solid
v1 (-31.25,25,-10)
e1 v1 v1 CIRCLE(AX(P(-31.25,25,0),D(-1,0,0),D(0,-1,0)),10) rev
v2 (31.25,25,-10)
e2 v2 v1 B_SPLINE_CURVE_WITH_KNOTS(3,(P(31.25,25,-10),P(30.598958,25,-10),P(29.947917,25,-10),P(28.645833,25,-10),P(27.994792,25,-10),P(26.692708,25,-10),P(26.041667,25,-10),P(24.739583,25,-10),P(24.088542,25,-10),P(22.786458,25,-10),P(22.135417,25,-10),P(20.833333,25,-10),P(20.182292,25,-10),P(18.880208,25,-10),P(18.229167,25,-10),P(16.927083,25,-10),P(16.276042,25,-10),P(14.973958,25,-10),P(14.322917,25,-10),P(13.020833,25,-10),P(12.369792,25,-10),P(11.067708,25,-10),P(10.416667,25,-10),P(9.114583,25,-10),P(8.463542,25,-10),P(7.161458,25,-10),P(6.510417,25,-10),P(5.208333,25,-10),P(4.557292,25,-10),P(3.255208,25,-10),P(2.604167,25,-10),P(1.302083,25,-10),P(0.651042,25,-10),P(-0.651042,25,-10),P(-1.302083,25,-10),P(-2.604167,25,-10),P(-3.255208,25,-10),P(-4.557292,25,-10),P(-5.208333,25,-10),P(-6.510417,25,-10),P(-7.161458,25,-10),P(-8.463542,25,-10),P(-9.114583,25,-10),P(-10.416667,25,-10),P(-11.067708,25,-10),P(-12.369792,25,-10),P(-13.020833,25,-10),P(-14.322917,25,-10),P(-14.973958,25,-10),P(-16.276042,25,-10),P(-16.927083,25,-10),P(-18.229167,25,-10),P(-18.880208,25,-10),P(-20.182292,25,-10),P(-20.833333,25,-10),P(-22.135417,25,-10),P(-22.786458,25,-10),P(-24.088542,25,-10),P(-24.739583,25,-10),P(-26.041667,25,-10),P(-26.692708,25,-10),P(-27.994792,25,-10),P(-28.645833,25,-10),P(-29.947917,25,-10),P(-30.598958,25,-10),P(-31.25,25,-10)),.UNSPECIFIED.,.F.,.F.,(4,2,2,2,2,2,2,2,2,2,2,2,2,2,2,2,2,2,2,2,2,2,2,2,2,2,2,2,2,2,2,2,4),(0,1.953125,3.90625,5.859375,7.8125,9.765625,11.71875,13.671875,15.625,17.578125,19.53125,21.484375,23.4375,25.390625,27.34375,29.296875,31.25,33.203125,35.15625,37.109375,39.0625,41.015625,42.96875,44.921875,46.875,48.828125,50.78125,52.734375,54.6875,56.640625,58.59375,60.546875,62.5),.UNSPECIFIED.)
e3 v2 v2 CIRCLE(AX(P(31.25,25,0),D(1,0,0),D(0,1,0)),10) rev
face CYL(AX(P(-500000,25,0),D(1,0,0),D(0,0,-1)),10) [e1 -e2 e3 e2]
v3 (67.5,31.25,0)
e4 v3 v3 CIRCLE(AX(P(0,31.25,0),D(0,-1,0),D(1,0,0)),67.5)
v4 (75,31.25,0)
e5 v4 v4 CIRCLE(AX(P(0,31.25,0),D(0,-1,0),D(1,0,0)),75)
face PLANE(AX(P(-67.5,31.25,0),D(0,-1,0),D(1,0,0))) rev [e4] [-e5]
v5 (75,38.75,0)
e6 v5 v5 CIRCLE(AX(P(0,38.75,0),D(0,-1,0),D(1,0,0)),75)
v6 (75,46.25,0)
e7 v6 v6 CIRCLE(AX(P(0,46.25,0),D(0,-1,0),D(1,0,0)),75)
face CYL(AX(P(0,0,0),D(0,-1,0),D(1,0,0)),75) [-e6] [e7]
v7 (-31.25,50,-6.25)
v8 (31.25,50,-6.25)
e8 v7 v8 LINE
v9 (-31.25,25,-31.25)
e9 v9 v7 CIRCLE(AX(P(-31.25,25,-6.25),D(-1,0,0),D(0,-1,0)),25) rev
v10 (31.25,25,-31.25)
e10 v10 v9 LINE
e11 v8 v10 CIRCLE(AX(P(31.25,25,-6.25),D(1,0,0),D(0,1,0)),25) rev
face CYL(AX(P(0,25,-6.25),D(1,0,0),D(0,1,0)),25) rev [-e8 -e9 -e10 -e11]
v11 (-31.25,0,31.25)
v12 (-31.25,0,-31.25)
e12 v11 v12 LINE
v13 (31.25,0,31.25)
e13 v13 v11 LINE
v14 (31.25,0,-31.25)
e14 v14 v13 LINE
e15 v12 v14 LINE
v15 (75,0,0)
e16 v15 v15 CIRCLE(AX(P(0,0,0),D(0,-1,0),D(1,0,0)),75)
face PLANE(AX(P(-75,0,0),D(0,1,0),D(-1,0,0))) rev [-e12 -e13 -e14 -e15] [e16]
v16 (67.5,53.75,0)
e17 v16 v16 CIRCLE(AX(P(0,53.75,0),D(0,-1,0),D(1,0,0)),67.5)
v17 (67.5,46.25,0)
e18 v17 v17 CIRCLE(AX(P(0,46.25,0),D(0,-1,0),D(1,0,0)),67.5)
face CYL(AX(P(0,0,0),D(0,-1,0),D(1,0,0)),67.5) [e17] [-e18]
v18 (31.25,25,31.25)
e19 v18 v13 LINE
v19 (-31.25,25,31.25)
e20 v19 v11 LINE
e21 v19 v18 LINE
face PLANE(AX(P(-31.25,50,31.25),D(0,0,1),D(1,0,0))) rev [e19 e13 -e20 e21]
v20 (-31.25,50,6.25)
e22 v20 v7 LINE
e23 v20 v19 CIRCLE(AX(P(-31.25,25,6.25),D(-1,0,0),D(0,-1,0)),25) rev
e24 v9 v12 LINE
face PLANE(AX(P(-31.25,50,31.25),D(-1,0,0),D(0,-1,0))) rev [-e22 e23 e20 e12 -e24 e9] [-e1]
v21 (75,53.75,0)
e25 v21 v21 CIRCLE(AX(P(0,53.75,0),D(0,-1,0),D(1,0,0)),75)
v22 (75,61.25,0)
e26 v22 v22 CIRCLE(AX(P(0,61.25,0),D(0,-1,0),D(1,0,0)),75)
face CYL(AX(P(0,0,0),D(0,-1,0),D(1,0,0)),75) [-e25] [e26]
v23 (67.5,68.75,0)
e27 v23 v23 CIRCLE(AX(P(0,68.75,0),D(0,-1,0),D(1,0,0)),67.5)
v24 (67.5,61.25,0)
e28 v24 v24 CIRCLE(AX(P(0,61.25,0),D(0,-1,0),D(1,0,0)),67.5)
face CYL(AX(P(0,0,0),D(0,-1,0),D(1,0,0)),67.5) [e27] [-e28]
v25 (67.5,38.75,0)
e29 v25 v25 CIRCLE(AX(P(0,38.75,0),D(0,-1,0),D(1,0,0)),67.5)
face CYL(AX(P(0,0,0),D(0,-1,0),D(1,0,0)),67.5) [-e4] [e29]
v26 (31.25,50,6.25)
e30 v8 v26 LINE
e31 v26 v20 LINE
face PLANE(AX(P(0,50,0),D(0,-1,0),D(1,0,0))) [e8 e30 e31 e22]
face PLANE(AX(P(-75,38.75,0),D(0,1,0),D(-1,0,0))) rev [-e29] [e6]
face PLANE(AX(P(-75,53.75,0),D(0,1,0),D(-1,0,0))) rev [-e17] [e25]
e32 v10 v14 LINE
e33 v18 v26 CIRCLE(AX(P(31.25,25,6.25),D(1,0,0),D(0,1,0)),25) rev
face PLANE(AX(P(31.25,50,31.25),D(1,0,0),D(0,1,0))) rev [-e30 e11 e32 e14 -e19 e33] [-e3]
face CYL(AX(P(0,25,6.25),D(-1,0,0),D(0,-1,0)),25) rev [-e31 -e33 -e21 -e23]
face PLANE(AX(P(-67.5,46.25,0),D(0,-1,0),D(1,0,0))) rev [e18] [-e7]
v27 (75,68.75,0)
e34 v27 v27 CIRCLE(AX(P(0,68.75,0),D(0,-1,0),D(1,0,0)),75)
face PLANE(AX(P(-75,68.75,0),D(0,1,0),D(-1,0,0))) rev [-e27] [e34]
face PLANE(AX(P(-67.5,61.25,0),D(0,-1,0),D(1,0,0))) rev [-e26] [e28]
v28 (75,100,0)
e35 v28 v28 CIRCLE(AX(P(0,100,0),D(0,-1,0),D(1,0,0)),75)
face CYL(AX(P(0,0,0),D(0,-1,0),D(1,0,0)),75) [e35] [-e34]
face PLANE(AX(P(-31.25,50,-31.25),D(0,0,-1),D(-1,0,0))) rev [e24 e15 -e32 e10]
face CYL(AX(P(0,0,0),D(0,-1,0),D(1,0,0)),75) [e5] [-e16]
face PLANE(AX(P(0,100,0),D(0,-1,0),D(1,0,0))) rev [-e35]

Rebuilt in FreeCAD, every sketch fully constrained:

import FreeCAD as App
import Part
import Sketcher
Q = App.Units.Quantity


def edges_at(feature, points):
    """Names of the edges that pass closest to the given points."""
    edges = feature.Shape.Edges
    near = lambda p: min(range(len(edges)), key=lambda i: edges[i].distToShape(Part.Vertex(*p))[0])
    return sorted({f"Edge{near(p) + 1}" for p in points})

doc = App.newDocument("Part")
params = doc.addObject("Spreadsheet::Sheet", "Params")
for row, (alias, value) in enumerate([
    ("sketch1_width", "75 mm"),
    ("sketch1_height", "100 mm"),
    ("sketch1_width2", "7.5 mm"),
    ("revolution_angle", "360 deg"),
    ("sketch2_width", "62.5 mm"),
    ("pocket1_length", "50 mm"),
    ("sketch3_diameter", "20 mm"),
    ("fillet_radius", "25 mm"),
], start=1):
    params.set(f"A{row}", alias)
    params.set(f"B{row}", "=" + value)
    params.setAlias(f"B{row}", alias)

body = doc.addObject("PartDesign::Body", "Body")

# Sketch on XY plane
sketch1 = body.newObject("Sketcher::SketchObject", "Sketch")
sketch1.AttachmentSupport = (doc.getObject("XY_Plane"), [""])
sketch1.MapMode = "FlatFace"
sketch1.addGeometry([
    Part.LineSegment(App.Vector(0, 0, 0), App.Vector(0, 100, 0)),  # 0
    Part.LineSegment(App.Vector(0, 100, 0), App.Vector(-75, 100, 0)),  # 1
    Part.LineSegment(App.Vector(-75, 100, 0), App.Vector(-75, 69, 0)),  # 2
    Part.LineSegment(App.Vector(-75, 69, 0), App.Vector(-68, 69, 0)),  # 3
    Part.LineSegment(App.Vector(-68, 69, 0), App.Vector(-68, 61, 0)),  # 4
    Part.LineSegment(App.Vector(-68, 61, 0), App.Vector(-75, 61, 0)),  # 5
    Part.LineSegment(App.Vector(-75, 61, 0), App.Vector(-75, 54, 0)),  # 6
    Part.LineSegment(App.Vector(-75, 54, 0), App.Vector(-68, 54, 0)),  # 7
    Part.LineSegment(App.Vector(-68, 54, 0), App.Vector(-68, 46, 0)),  # 8
    Part.LineSegment(App.Vector(-68, 46, 0), App.Vector(-75, 46, 0)),  # 9
    Part.LineSegment(App.Vector(-75, 46, 0), App.Vector(-75, 39, 0)),  # 10
    Part.LineSegment(App.Vector(-75, 39, 0), App.Vector(-68, 39, 0)),  # 11
    Part.LineSegment(App.Vector(-68, 39, 0), App.Vector(-68, 31, 0)),  # 12
    Part.LineSegment(App.Vector(-68, 31, 0), App.Vector(-75, 31, 0)),  # 13
    Part.LineSegment(App.Vector(-75, 31, 0), App.Vector(-75, 0, 0)),  # 14
    Part.LineSegment(App.Vector(-75, 0, 0), App.Vector(0, 0, 0)),  # 15
], False)
sketch1.addConstraint([
    Sketcher.Constraint("Coincident", 0, 2, 1, 1),
    Sketcher.Constraint("Coincident", 1, 2, 2, 1),
    Sketcher.Constraint("Coincident", 2, 2, 3, 1),
    Sketcher.Constraint("Coincident", 3, 2, 4, 1),
    Sketcher.Constraint("Coincident", 4, 2, 5, 1),
    Sketcher.Constraint("Coincident", 5, 2, 6, 1),
    Sketcher.Constraint("Coincident", 6, 2, 7, 1),
    Sketcher.Constraint("Coincident", 7, 2, 8, 1),
    Sketcher.Constraint("Coincident", 8, 2, 9, 1),
    Sketcher.Constraint("Coincident", 9, 2, 10, 1),
    Sketcher.Constraint("Coincident", 10, 2, 11, 1),
    Sketcher.Constraint("Coincident", 11, 2, 12, 1),
    Sketcher.Constraint("Coincident", 12, 2, 13, 1),
    Sketcher.Constraint("Coincident", 13, 2, 14, 1),
    Sketcher.Constraint("Coincident", 14, 2, 15, 1),
    Sketcher.Constraint("Coincident", 15, 2, 0, 1),
    Sketcher.Constraint("Vertical", 0),
    Sketcher.Constraint("Horizontal", 1),
    Sketcher.Constraint("Vertical", 2),
    Sketcher.Constraint("Horizontal", 3),
    Sketcher.Constraint("Vertical", 4),
    Sketcher.Constraint("Horizontal", 5),
    Sketcher.Constraint("Vertical", 6),
    Sketcher.Constraint("Horizontal", 7),
    Sketcher.Constraint("Vertical", 8),
    Sketcher.Constraint("Horizontal", 9),
    Sketcher.Constraint("Vertical", 10),
    Sketcher.Constraint("Horizontal", 11),
    Sketcher.Constraint("Vertical", 12),
    Sketcher.Constraint("Horizontal", 13),
    Sketcher.Constraint("Vertical", 14),
    Sketcher.Constraint("Horizontal", 15),
    Sketcher.Constraint("Coincident", 15, 2, -1, 1),
    Sketcher.Constraint("Vertical", 2, 2, 5, 2),
    Sketcher.Constraint("Vertical", 4, 2, 7, 2),
    Sketcher.Constraint("Vertical", 6, 2, 9, 2),
    Sketcher.Constraint("Vertical", 8, 2, 11, 2),
    Sketcher.Constraint("Vertical", 10, 2, 13, 2),
    Sketcher.Constraint("Equal", 13, 4),
    Sketcher.Constraint("Equal", 4, 6),
    Sketcher.Constraint("Equal", 6, 8),
    Sketcher.Constraint("Equal", 8, 10),
    Sketcher.Constraint("Equal", 10, 12),
    Sketcher.Constraint("Equal", 2, 14),
    Sketcher.Constraint("DistanceX", 1, 2, 1, 1, Q("75 mm")),
    Sketcher.Constraint("DistanceY", 0, 1, 0, 2, Q("100 mm")),
    Sketcher.Constraint("DistanceX", 3, 1, 3, 2, Q("7.5 mm")),
])
sketch1.setExpression("Constraints[44]", "Params.sketch1_width")
sketch1.setExpression("Constraints[45]", "Params.sketch1_height")
sketch1.setExpression("Constraints[46]", "Params.sketch1_width2")
revolution = body.newObject("PartDesign::Revolution", "Revolution")
revolution.Profile = sketch1
revolution.ReferenceAxis = (sketch1, ["V_Axis"])
revolution.setExpression("Angle", "Params.revolution_angle")

# Sketch on XZ plane
sketch2 = body.newObject("Sketcher::SketchObject", "Sketch001")
sketch2.AttachmentSupport = (doc.getObject("XZ_Plane"), [""])
sketch2.MapMode = "FlatFace"
sketch2.addGeometry([
    Part.LineSegment(App.Vector(-31, 31, 0), App.Vector(-31, -31, 0)),
    Part.LineSegment(App.Vector(-31, -31, 0), App.Vector(31, -31, 0)),
    Part.LineSegment(App.Vector(31, -31, 0), App.Vector(31, 31, 0)),
    Part.LineSegment(App.Vector(31, 31, 0), App.Vector(-31, 31, 0)),
], False)
sketch2.addConstraint([
    Sketcher.Constraint("Coincident", 0, 2, 1, 1),
    Sketcher.Constraint("Coincident", 1, 2, 2, 1),
    Sketcher.Constraint("Coincident", 2, 2, 3, 1),
    Sketcher.Constraint("Coincident", 3, 2, 0, 1),
    Sketcher.Constraint("Vertical", 0),
    Sketcher.Constraint("Horizontal", 1),
    Sketcher.Constraint("Vertical", 2),
    Sketcher.Constraint("Horizontal", 3),
    Sketcher.Constraint("Symmetric", 0, 2, 2, 2, -1, 1),
    Sketcher.Constraint("Equal", 3, 0),
    Sketcher.Constraint("DistanceX", 1, 1, 1, 2, Q("62.5 mm")),
])
sketch2.setExpression("Constraints[10]", "Params.sketch2_width")
pocket1 = body.newObject("PartDesign::Pocket", "Pocket")
pocket1.Profile = sketch2
pocket1.setExpression("Length", "Params.pocket1_length")

# Sketch on YZ plane
sketch3 = body.newObject("Sketcher::SketchObject", "Sketch002")
sketch3.AttachmentSupport = (doc.getObject("YZ_Plane"), [""])
sketch3.MapMode = "FlatFace"
sketch3.AttachmentOffset = App.Placement(App.Vector(0, 0, 31.25), App.Rotation())
sketch3.addGeometry(Part.Circle(App.Vector(25, 0, 0), App.Vector(0, 0, 1), 10), False)
sketch3.addConstraint([
    Sketcher.Constraint("PointOnObject", 0, 3, -1),
    Sketcher.Constraint("Diameter", 0, Q("20 mm")),
    Sketcher.Constraint("DistanceX", -1, 1, 0, 3, Q("25 mm")),
])
sketch3.setExpression("Constraints[1]", "Params.sketch3_diameter")
pad1 = body.newObject("PartDesign::Pad", "Pad")
pad1.Profile = sketch3
pad1.Type = "UpToFirst"
pad1.Reversed = True
doc.recompute()

fillet = body.newObject("PartDesign::Fillet", "Fillet")
fillet.Base = (pad1, edges_at(pad1, [(0, 50, -31.25), (0, 50, 31.25)]))
fillet.setExpression("Radius", "Params.fillet_radius")

doc.recompute()
